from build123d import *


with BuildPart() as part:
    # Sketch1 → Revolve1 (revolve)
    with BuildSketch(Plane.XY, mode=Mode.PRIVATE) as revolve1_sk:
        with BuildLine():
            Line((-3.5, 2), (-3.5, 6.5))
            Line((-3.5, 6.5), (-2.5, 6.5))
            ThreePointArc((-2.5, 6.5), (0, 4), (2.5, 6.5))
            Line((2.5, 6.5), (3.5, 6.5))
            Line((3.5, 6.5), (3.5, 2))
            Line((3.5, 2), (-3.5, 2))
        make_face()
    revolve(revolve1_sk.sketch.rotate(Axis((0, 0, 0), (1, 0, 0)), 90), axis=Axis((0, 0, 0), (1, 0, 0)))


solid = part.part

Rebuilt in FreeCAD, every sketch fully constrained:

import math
import FreeCAD as App
import Part
import Sketcher

doc = App.newDocument("Part")
body = doc.addObject("PartDesign::Body", "Body")

# Sketch on XY plane
sketch1 = doc.addObject("Sketcher::SketchObject", "Sketch")
body.addObject(sketch1)
sketch1.AttachmentSupport = (doc.XY_Plane, [""])
sketch1.MapMode = "FlatFace"
sketch1.addGeometry(Part.LineSegment(App.Vector(-3.5, 6.5, 0), App.Vector(-3.5, 2, 0)), False)
sketch1.addGeometry(Part.LineSegment(App.Vector(-3.5, 2, 0), App.Vector(3.5, 2, 0)), False)
sketch1.addGeometry(Part.LineSegment(App.Vector(3.5, 2, 0), App.Vector(3.5, 6.5, 0)), False)
sketch1.addGeometry(Part.LineSegment(App.Vector(3.5, 6.5, 0), App.Vector(2.5, 6.5, 0)), False)
sketch1.addGeometry(Part.ArcOfCircle(Part.Circle(App.Vector(0, 6.5, 0), App.Vector(0, 0, 1), 2.5), math.radians(180), math.radians(360)), False)
sketch1.addGeometry(Part.LineSegment(App.Vector(-2.5, 6.5, 0), App.Vector(-3.5, 6.5, 0)), False)
sketch1.addConstraint(Sketcher.Constraint("Coincident", 0, 2, 1, 1))
sketch1.addConstraint(Sketcher.Constraint("Coincident", 1, 2, 2, 1))
sketch1.addConstraint(Sketcher.Constraint("Coincident", 2, 2, 3, 1))
sketch1.addConstraint(Sketcher.Constraint("Coincident", 3, 2, 4, 2))
sketch1.addConstraint(Sketcher.Constraint("Coincident", 4, 1, 5, 1))
sketch1.addConstraint(Sketcher.Constraint("Coincident", 5, 2, 0, 1))
sketch1.addConstraint(Sketcher.Constraint("Vertical", 0))
sketch1.addConstraint(Sketcher.Constraint("Horizontal", 1))
sketch1.addConstraint(Sketcher.Constraint("Vertical", 2))
sketch1.addConstraint(Sketcher.Constraint("Horizontal", 3))
sketch1.addConstraint(Sketcher.Constraint("Horizontal", 5))
sketch1.addConstraint(Sketcher.Constraint("Symmetric", 3, 2, 4, 1, -2))
sketch1.addConstraint(Sketcher.Constraint("Horizontal", 4, 3, 2, 2))
sketch1.addConstraint(Sketcher.Constraint("Equal", 3, 5))
sketch1.addConstraint(Sketcher.Constraint("Radius", 4, 2.5))
sketch1.addConstraint(Sketcher.Constraint("DistanceX", 1, 1, 1, 2, 7.0))
sketch1.addConstraint(Sketcher.Constraint("DistanceY", 0, 2, 0, 1, 4.5))
sketch1.addConstraint(Sketcher.Constraint("DistanceY", -1, 1, 0, 2, 2.0))
revolution = doc.addObject("PartDesign::Revolution", "Revolution")
body.addObject(revolution)
revolution.Profile = sketch1
revolution.ReferenceAxis = (sketch1, ["H_Axis"])
revolution.Angle = 360

doc.recompute()
